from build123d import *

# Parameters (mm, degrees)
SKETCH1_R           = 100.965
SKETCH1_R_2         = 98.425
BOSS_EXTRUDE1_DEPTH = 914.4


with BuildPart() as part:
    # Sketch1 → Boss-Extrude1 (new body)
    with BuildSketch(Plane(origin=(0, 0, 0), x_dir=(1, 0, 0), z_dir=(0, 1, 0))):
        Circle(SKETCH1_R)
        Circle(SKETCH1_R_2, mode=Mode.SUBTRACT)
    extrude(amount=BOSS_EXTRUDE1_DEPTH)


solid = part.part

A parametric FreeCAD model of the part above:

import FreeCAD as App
import Part
import Sketcher
from FreeCAD import Vector
Q = App.Units.Quantity

doc = App.newDocument("Part")
body = doc.addObject("PartDesign::Body", "Body")

sketch1 = body.newObject("Sketcher::SketchObject", "Sketch")
sketch1.AttachmentSupport = (doc.getObject("XZ_Plane"), [""])
sketch1.MapMode = "FlatFace"
sketch1.addGeometry([
    Part.Circle(Vector(0, 0, 0), Vector(0, 0, 1), 101),
    Part.Circle(Vector(0, 0, 0), Vector(0, 0, 1), 98),
], False)
sketch1.addConstraint([
    Sketcher.Constraint("Coincident", 0, 3, -1, 1),
    Sketcher.Constraint("Coincident", 1, 3, -1, 1),
    Sketcher.Constraint("Diameter", 0, Q("7.95 in")),
    Sketcher.Constraint("Diameter", 1, Q("7.75 in")),
])
pad1 = body.newObject("PartDesign::Pad", "Pad")
pad1.Profile = sketch1
pad1.Length = Q("36 in")
pad1.Reversed = True

doc.recompute()
